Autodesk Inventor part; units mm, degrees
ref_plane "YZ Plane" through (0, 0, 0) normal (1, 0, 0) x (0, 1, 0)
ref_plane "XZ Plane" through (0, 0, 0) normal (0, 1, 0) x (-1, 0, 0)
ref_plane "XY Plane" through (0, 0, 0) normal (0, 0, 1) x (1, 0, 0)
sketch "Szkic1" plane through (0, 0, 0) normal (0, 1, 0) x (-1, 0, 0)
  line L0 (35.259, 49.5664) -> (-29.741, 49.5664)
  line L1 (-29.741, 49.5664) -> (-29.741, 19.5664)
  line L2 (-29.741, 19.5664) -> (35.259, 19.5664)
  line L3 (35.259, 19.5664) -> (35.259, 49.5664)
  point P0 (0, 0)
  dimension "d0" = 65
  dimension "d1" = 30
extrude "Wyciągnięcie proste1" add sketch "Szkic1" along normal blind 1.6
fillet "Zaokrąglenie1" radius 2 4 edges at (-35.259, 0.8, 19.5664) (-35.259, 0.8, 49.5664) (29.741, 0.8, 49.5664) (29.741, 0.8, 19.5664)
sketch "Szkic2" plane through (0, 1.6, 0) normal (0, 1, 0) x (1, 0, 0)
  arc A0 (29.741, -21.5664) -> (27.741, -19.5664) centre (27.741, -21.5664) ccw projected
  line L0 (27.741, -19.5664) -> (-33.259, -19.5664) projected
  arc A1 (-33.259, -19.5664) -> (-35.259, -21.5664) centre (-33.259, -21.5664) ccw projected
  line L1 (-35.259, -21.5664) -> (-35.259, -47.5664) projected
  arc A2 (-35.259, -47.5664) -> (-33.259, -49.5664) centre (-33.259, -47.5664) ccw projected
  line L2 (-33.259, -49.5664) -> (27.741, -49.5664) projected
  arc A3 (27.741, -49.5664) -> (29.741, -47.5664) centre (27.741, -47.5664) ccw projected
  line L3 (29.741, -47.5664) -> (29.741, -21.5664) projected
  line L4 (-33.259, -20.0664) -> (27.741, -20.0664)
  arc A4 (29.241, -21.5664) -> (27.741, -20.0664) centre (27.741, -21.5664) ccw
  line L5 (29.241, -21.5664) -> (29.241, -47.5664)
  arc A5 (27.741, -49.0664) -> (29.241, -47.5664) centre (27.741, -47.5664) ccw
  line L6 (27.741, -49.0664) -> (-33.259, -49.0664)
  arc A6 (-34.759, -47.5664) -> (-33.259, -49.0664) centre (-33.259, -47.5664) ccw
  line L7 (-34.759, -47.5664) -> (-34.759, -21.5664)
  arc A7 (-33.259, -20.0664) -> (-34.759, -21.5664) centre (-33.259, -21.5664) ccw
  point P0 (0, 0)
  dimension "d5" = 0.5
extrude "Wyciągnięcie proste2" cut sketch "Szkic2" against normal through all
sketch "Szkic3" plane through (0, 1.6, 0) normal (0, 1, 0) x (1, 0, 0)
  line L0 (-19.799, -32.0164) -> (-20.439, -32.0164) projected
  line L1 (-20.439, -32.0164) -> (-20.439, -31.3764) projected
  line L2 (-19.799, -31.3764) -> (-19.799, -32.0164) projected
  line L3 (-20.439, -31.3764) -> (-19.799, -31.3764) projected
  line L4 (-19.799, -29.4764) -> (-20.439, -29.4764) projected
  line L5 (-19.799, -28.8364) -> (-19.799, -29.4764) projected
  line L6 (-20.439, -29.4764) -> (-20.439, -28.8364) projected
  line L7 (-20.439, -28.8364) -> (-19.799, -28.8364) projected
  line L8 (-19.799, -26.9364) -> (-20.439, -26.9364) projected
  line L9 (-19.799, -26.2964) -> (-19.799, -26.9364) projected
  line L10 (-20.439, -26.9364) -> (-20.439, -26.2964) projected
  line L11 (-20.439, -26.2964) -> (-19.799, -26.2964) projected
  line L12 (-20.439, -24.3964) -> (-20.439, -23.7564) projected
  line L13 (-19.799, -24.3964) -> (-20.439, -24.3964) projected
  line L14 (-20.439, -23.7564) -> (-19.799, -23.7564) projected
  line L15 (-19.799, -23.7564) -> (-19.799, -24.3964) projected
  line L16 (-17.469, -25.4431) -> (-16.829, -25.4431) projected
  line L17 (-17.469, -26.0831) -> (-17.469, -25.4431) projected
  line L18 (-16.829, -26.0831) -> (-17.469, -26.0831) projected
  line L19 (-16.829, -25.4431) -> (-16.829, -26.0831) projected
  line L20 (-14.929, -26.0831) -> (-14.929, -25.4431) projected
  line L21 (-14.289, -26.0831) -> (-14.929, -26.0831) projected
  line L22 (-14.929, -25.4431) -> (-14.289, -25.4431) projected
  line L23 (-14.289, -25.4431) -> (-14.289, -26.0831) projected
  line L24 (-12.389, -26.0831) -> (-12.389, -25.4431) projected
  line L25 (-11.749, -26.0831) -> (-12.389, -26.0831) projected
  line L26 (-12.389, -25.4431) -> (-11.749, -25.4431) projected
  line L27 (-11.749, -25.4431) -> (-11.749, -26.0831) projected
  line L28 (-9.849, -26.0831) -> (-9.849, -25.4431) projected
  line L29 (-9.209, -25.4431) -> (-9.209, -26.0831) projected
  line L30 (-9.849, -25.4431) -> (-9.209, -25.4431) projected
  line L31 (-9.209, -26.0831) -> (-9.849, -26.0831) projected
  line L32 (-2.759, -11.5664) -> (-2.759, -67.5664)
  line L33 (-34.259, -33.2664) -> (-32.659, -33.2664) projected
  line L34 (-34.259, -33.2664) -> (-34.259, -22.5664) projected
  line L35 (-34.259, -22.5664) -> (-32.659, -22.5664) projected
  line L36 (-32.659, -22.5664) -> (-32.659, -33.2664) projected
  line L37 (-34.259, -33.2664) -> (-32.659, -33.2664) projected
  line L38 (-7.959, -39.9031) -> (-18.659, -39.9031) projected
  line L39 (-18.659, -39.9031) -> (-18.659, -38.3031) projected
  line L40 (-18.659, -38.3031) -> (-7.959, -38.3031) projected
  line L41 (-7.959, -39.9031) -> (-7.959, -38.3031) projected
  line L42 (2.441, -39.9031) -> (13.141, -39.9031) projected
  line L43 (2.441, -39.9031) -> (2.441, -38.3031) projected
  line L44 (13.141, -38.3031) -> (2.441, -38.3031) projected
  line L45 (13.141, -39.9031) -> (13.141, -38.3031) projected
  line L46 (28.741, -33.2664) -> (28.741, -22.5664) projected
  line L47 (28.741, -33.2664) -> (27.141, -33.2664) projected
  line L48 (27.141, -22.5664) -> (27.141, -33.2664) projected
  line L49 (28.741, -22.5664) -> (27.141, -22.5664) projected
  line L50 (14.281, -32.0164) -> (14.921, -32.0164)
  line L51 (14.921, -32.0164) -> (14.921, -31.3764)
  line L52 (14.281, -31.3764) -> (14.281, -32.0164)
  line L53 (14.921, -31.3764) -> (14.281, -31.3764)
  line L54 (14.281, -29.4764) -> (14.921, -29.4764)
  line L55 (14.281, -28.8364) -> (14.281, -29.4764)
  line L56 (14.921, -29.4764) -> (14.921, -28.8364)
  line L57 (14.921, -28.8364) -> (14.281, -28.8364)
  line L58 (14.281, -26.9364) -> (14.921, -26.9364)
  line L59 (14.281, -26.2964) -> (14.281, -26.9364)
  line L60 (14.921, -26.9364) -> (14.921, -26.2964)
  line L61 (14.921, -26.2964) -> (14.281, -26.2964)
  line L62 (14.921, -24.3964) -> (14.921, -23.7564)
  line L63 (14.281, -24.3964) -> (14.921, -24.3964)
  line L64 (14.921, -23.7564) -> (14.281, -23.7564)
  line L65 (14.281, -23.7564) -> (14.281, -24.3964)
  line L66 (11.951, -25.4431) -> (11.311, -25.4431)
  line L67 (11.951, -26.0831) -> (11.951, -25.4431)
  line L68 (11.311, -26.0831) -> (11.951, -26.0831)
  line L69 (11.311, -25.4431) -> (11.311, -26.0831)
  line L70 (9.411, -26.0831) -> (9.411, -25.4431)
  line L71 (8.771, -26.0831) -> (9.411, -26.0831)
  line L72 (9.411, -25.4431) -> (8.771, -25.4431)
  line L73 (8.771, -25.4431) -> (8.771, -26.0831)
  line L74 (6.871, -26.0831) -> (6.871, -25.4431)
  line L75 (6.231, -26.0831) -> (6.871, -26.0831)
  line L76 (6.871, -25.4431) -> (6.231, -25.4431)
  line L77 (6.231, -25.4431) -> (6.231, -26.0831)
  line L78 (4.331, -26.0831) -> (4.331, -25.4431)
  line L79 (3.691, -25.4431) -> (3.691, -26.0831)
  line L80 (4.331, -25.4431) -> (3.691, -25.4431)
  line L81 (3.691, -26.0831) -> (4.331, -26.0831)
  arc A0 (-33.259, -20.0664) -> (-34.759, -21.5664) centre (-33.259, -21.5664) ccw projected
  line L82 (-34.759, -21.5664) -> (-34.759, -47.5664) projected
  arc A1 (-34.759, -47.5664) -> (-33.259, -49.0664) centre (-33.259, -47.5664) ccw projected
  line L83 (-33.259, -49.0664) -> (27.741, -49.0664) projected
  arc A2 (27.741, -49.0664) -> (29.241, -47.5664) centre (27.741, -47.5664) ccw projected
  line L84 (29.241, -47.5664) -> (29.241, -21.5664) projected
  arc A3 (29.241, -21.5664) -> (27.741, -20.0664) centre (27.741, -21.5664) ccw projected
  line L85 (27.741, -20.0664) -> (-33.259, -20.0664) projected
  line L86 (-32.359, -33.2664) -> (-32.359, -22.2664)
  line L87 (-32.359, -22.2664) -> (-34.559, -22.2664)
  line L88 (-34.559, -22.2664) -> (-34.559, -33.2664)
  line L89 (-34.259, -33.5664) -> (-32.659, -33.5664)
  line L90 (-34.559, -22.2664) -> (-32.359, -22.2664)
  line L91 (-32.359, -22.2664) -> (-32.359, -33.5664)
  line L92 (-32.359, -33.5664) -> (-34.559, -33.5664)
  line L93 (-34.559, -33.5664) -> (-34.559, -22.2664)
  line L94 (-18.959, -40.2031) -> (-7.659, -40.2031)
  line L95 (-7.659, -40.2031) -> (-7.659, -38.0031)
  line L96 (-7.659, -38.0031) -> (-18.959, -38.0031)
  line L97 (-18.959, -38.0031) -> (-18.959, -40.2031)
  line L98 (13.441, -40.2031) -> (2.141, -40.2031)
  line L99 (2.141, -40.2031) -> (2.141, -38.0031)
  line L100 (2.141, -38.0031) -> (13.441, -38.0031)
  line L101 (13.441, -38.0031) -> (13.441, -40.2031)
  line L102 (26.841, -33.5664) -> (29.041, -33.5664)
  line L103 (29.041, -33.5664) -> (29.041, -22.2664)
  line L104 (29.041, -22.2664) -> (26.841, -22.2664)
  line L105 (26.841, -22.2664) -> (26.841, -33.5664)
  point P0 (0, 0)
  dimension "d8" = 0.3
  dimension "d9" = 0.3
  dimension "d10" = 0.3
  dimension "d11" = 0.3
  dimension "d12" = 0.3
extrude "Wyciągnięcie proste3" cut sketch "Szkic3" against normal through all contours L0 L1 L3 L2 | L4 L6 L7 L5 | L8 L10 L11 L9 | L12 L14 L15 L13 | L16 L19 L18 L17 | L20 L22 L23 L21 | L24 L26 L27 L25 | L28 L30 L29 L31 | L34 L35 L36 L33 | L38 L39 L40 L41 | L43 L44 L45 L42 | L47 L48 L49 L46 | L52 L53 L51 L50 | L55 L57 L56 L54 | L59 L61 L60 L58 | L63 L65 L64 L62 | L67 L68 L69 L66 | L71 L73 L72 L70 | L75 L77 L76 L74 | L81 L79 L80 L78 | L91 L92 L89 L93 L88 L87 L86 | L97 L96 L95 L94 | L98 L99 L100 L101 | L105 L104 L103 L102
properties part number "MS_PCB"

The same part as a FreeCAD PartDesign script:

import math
import FreeCAD as App
import Part
import Sketcher


def edges_at(feature, points):
    """Names of the edges that pass closest to the given points."""
    edges = feature.Shape.Edges
    near = lambda p: min(range(len(edges)), key=lambda i: edges[i].distToShape(Part.Vertex(*p))[0])
    return sorted({f"Edge{near(p) + 1}" for p in points})

doc = App.newDocument("Part")
body = doc.addObject("PartDesign::Body", "Body")

# Sketch on XZ plane
sketch1 = body.newObject("Sketcher::SketchObject", "Sketch")
sketch1.AttachmentSupport = (doc.getObject("XZ_Plane"), [""])
sketch1.MapMode = "FlatFace"
sketch1.addGeometry([
    Part.LineSegment(App.Vector(-35, 20, 0), App.Vector(-35, 50, 0)),
    Part.LineSegment(App.Vector(-35, 50, 0), App.Vector(30, 50, 0)),
    Part.LineSegment(App.Vector(30, 50, 0), App.Vector(30, 20, 0)),
    Part.LineSegment(App.Vector(30, 20, 0), App.Vector(-35, 20, 0)),
], False)
sketch1.addConstraint([
    Sketcher.Constraint("Coincident", 0, 2, 1, 1),
    Sketcher.Constraint("Coincident", 1, 2, 2, 1),
    Sketcher.Constraint("Coincident", 2, 2, 3, 1),
    Sketcher.Constraint("Coincident", 3, 2, 0, 1),
    Sketcher.Constraint("Vertical", 0),
    Sketcher.Constraint("Horizontal", 1),
    Sketcher.Constraint("Vertical", 2),
    Sketcher.Constraint("Horizontal", 3),
    Sketcher.Constraint("DistanceX", 1, 1, 1, 2, 65.0),
    Sketcher.Constraint("DistanceY", 0, 1, 0, 2, 30.0),
    Sketcher.Constraint("DistanceX", 0, 2, -1, 1, 35.259),
    Sketcher.Constraint("DistanceY", -1, 1, 0, 2, 49.5664),
])
pad1 = body.newObject("PartDesign::Pad", "Pad")
pad1.Profile = sketch1
pad1.Length = 1.6
pad1.Reversed = True
doc.recompute()

fillet = body.newObject("PartDesign::Fillet", "Fillet")
fillet.Base = (pad1, edges_at(pad1, [
    (-35.259, 0.8, 19.566),
    (-35.259, 0.8, 49.566),
    (29.741, 0.8, 49.566),
    (29.741, 0.8, 19.566),
]))
fillet.Radius = 2

# Sketch on XZ plane
sketch2 = body.newObject("Sketcher::SketchObject", "Sketch001")
sketch2.AttachmentSupport = (doc.getObject("XZ_Plane"), [""])
sketch2.MapMode = "FlatFace"
sketch2.AttachmentOffset = App.Placement(App.Vector(0, 0, -1.6), App.Rotation())
sketch2.addGeometry([
    Part.LineSegment(App.Vector(29.7, 47.6, 0), App.Vector(29.7, 21.6, 0)),  # 0
    Part.ArcOfCircle(Part.Circle(App.Vector(27.7, 21.6, 0), App.Vector(0, 0, 1), 2), math.radians(-90), math.radians(0)),  # 1
    Part.LineSegment(App.Vector(27.7, 19.6, 0), App.Vector(-33.3, 19.6, 0)),  # 2
    Part.ArcOfCircle(Part.Circle(App.Vector(-33.3, 21.6, 0), App.Vector(0, 0, 1), 2), math.radians(180), math.radians(270)),  # 3
    Part.LineSegment(App.Vector(-35.3, 21.6, 0), App.Vector(-35.3, 47.6, 0)),  # 4
    Part.ArcOfCircle(Part.Circle(App.Vector(-33.3, 47.6, 0), App.Vector(0, 0, 1), 2), math.radians(90), math.radians(180)),  # 5
    Part.LineSegment(App.Vector(-33.3, 49.6, 0), App.Vector(27.7, 49.6, 0)),  # 6
    Part.ArcOfCircle(Part.Circle(App.Vector(27.7, 47.6, 0), App.Vector(0, 0, 1), 2), math.radians(0), math.radians(90)),  # 7
    Part.ArcOfCircle(Part.Circle(App.Vector(-33.3, 21.6, 0), App.Vector(0, 0, 1), 1.5), math.radians(180), math.radians(270)),  # 8
    Part.LineSegment(App.Vector(-33.3, 20.1, 0), App.Vector(27.7, 20.1, 0)),  # 9
    Part.ArcOfCircle(Part.Circle(App.Vector(27.7, 21.6, 0), App.Vector(0, 0, 1), 1.5), math.radians(-90), math.radians(0)),  # 10
    Part.LineSegment(App.Vector(29.2, 21.6, 0), App.Vector(29.2, 47.6, 0)),  # 11
    Part.ArcOfCircle(Part.Circle(App.Vector(27.7, 47.6, 0), App.Vector(0, 0, 1), 1.5), math.radians(0), math.radians(90)),  # 12
    Part.LineSegment(App.Vector(27.7, 49.1, 0), App.Vector(-33.3, 49.1, 0)),  # 13
    Part.ArcOfCircle(Part.Circle(App.Vector(-33.3, 47.6, 0), App.Vector(0, 0, 1), 1.5), math.radians(90), math.radians(180)),  # 14
    Part.LineSegment(App.Vector(-34.8, 47.6, 0), App.Vector(-34.8, 21.6, 0)),  # 15
], False)
sketch2.addConstraint([
    Sketcher.Constraint("Tangent", 0, 2, 1, 2),
    Sketcher.Constraint("Tangent", 1, 1, 2, 1),
    Sketcher.Constraint("Tangent", 2, 2, 3, 2),
    Sketcher.Constraint("Tangent", 3, 1, 4, 1),
    Sketcher.Constraint("Tangent", 4, 2, 5, 2),
    Sketcher.Constraint("Tangent", 5, 1, 6, 1),
    Sketcher.Constraint("Tangent", 6, 2, 7, 2),
    Sketcher.Constraint("Tangent", 7, 1, 0, 1),
    Sketcher.Constraint("Tangent", 8, 2, 9, 1),
    Sketcher.Constraint("Tangent", 9, 2, 10, 1),
    Sketcher.Constraint("Tangent", 10, 2, 11, 1),
    Sketcher.Constraint("Tangent", 11, 2, 12, 1),
    Sketcher.Constraint("Tangent", 12, 2, 13, 1),
    Sketcher.Constraint("Tangent", 13, 2, 14, 1),
    Sketcher.Constraint("Tangent", 14, 2, 15, 1),
    Sketcher.Constraint("Tangent", 15, 2, 8, 1),
    Sketcher.Constraint("Vertical", 0),
    Sketcher.Constraint("Horizontal", 2),
    Sketcher.Constraint("Vertical", 4),
    Sketcher.Constraint("Horizontal", 6),
    Sketcher.Constraint("Horizontal", 9),
    Sketcher.Constraint("Vertical", 11),
    Sketcher.Constraint("Horizontal", 13),
    Sketcher.Constraint("Vertical", 15),
    Sketcher.Constraint("Coincident", 8, 3, 3, 3),
    Sketcher.Constraint("Coincident", 10, 3, 1, 3),
    Sketcher.Constraint("Coincident", 12, 3, 7, 3),
    Sketcher.Constraint("Equal", 1, 3),
    Sketcher.Constraint("Equal", 3, 5),
    Sketcher.Constraint("Equal", 5, 7),
    Sketcher.Constraint("Equal", 12, 14),
    Sketcher.Constraint("Radius", 1, 2.0),
    Sketcher.Constraint("Radius", 8, 1.5),
    Sketcher.Constraint("DistanceX", 2, 2, 2, 1, 61.0),
    Sketcher.Constraint("DistanceY", 0, 2, 0, 1, 26.0),
    Sketcher.Constraint("DistanceX", -1, 1, 1, 3, 27.741),
    Sketcher.Constraint("DistanceY", -1, 1, 1, 3, 21.5664),
])
pocket1 = body.newObject("PartDesign::Pocket", "Pocket")
pocket1.Profile = sketch2
pocket1.Type = "ThroughAll"
pocket1.Reversed = True

# Sketch on XZ plane
sketch3 = body.newObject("Sketcher::SketchObject", "Sketch002")
sketch3.AttachmentSupport = (doc.getObject("XZ_Plane"), [""])
sketch3.MapMode = "FlatFace"
sketch3.AttachmentOffset = App.Placement(App.Vector(0, 0, -1.6), App.Rotation())
sketch3.addGeometry([
    Part.LineSegment(App.Vector(-20.4, 32, 0), App.Vector(-19.8, 32, 0)),  # 0
    Part.LineSegment(App.Vector(-19.8, 32, 0), App.Vector(-19.8, 31.4, 0)),  # 1
    Part.LineSegment(App.Vector(-19.8, 31.4, 0), App.Vector(-20.4, 31.4, 0)),  # 2
    Part.LineSegment(App.Vector(-20.4, 31.4, 0), App.Vector(-20.4, 32, 0)),  # 3
    Part.LineSegment(App.Vector(-20.4, 29.5, 0), App.Vector(-19.8, 29.5, 0)),  # 4
    Part.LineSegment(App.Vector(-19.8, 29.5, 0), App.Vector(-19.8, 28.8, 0)),  # 5
    Part.LineSegment(App.Vector(-19.8, 28.8, 0), App.Vector(-20.4, 28.8, 0)),  # 6
    Part.LineSegment(App.Vector(-20.4, 28.8, 0), App.Vector(-20.4, 29.5, 0)),  # 7
    Part.LineSegment(App.Vector(-20.4, 26.9, 0), App.Vector(-19.8, 26.9, 0)),  # 8
    Part.LineSegment(App.Vector(-19.8, 26.9, 0), App.Vector(-19.8, 26.3, 0)),  # 9
    Part.LineSegment(App.Vector(-19.8, 26.3, 0), App.Vector(-20.4, 26.3, 0)),  # 10
    Part.LineSegment(App.Vector(-20.4, 26.3, 0), App.Vector(-20.4, 26.9, 0)),  # 11
    Part.LineSegment(App.Vector(-20.4, 23.8, 0), App.Vector(-20.4, 24.4, 0)),  # 12
    Part.LineSegment(App.Vector(-20.4, 24.4, 0), App.Vector(-19.8, 24.4, 0)),  # 13
    Part.LineSegment(App.Vector(-19.8, 24.4, 0), App.Vector(-19.8, 23.8, 0)),  # 14
    Part.LineSegment(App.Vector(-19.8, 23.8, 0), App.Vector(-20.4, 23.8, 0)),  # 15
    Part.LineSegment(App.Vector(-16.8, 25.4, 0), App.Vector(-17.5, 25.4, 0)),  # 16
    Part.LineSegment(App.Vector(-17.5, 25.4, 0), App.Vector(-17.5, 26.1, 0)),  # 17
    Part.LineSegment(App.Vector(-17.5, 26.1, 0), App.Vector(-16.8, 26.1, 0)),  # 18
    Part.LineSegment(App.Vector(-16.8, 26.1, 0), App.Vector(-16.8, 25.4, 0)),  # 19
    Part.LineSegment(App.Vector(-14.9, 25.4, 0), App.Vector(-14.9, 26.1, 0)),  # 20
    Part.LineSegment(App.Vector(-14.9, 26.1, 0), App.Vector(-14.3, 26.1, 0)),  # 21
    Part.LineSegment(App.Vector(-14.3, 26.1, 0), App.Vector(-14.3, 25.4, 0)),  # 22
    Part.LineSegment(App.Vector(-14.3, 25.4, 0), App.Vector(-14.9, 25.4, 0)),  # 23
    Part.LineSegment(App.Vector(-12.4, 25.4, 0), App.Vector(-12.4, 26.1, 0)),  # 24
    Part.LineSegment(App.Vector(-12.4, 26.1, 0), App.Vector(-11.7, 26.1, 0)),  # 25
    Part.LineSegment(App.Vector(-11.7, 26.1, 0), App.Vector(-11.7, 25.4, 0)),  # 26
    Part.LineSegment(App.Vector(-11.7, 25.4, 0), App.Vector(-12.4, 25.4, 0)),  # 27
    Part.LineSegment(App.Vector(-9.8, 25.4, 0), App.Vector(-9.8, 26.1, 0)),  # 28
    Part.LineSegment(App.Vector(-9.8, 26.1, 0), App.Vector(-9.2, 26.1, 0)),  # 29
    Part.LineSegment(App.Vector(-9.2, 26.1, 0), App.Vector(-9.2, 25.4, 0)),  # 30
    Part.LineSegment(App.Vector(-9.2, 25.4, 0), App.Vector(-9.8, 25.4, 0)),  # 31
    Part.LineSegment(App.Vector(-32.4, 33.6, 0), App.Vector(-32.4, 22.3, 0)),  # 32
    Part.LineSegment(App.Vector(-32.4, 22.3, 0), App.Vector(-34.6, 22.3, 0)),  # 33
    Part.LineSegment(App.Vector(-34.6, 22.3, 0), App.Vector(-34.6, 33.6, 0)),  # 34
    Part.LineSegment(App.Vector(-34.6, 33.6, 0), App.Vector(-32.4, 33.6, 0)),  # 35
    Part.LineSegment(App.Vector(-19, 38, 0), App.Vector(-19, 40.2, 0)),  # 36
    Part.LineSegment(App.Vector(-19, 40.2, 0), App.Vector(-7.7, 40.2, 0)),  # 37
    Part.LineSegment(App.Vector(-7.7, 40.2, 0), App.Vector(-7.7, 38, 0)),  # 38
    Part.LineSegment(App.Vector(-7.7, 38, 0), App.Vector(-19, 38, 0)),  # 39
    Part.LineSegment(App.Vector(2.1, 40.2, 0), App.Vector(13.4, 40.2, 0)),  # 40
    Part.LineSegment(App.Vector(13.4, 40.2, 0), App.Vector(13.4, 38, 0)),  # 41
    Part.LineSegment(App.Vector(13.4, 38, 0), App.Vector(2.1, 38, 0)),  # 42
    Part.LineSegment(App.Vector(2.1, 38, 0), App.Vector(2.1, 40.2, 0)),  # 43
    Part.LineSegment(App.Vector(26.8, 22.3, 0), App.Vector(26.8, 33.6, 0)),  # 44
    Part.LineSegment(App.Vector(26.8, 33.6, 0), App.Vector(29, 33.6, 0)),  # 45
    Part.LineSegment(App.Vector(29, 33.6, 0), App.Vector(29, 22.3, 0)),  # 46
    Part.LineSegment(App.Vector(29, 22.3, 0), App.Vector(26.8, 22.3, 0)),  # 47
    Part.LineSegment(App.Vector(14.3, 31.4, 0), App.Vector(14.3, 32, 0)),  # 48
    Part.LineSegment(App.Vector(14.3, 32, 0), App.Vector(14.9, 32, 0)),  # 49
    Part.LineSegment(App.Vector(14.9, 32, 0), App.Vector(14.9, 31.4, 0)),  # 50
    Part.LineSegment(App.Vector(14.9, 31.4, 0), App.Vector(14.3, 31.4, 0)),  # 51
    Part.LineSegment(App.Vector(14.3, 28.8, 0), App.Vector(14.3, 29.5, 0)),  # 52
    Part.LineSegment(App.Vector(14.3, 29.5, 0), App.Vector(14.9, 29.5, 0)),  # 53
    Part.LineSegment(App.Vector(14.9, 29.5, 0), App.Vector(14.9, 28.8, 0)),  # 54
    Part.LineSegment(App.Vector(14.9, 28.8, 0), App.Vector(14.3, 28.8, 0)),  # 55
    Part.LineSegment(App.Vector(14.3, 26.3, 0), App.Vector(14.3, 26.9, 0)),  # 56
    Part.LineSegment(App.Vector(14.3, 26.9, 0), App.Vector(14.9, 26.9, 0)),  # 57
    Part.LineSegment(App.Vector(14.9, 26.9, 0), App.Vector(14.9, 26.3, 0)),  # 58
    Part.LineSegment(App.Vector(14.9, 26.3, 0), App.Vector(14.3, 26.3, 0)),  # 59
    Part.LineSegment(App.Vector(14.3, 24.4, 0), App.Vector(14.9, 24.4, 0)),  # 60
    Part.LineSegment(App.Vector(14.9, 24.4, 0), App.Vector(14.9, 23.8, 0)),  # 61
    Part.LineSegment(App.Vector(14.9, 23.8, 0), App.Vector(14.3, 23.8, 0)),  # 62
    Part.LineSegment(App.Vector(14.3, 23.8, 0), App.Vector(14.3, 24.4, 0)),  # 63
    Part.LineSegment(App.Vector(12, 26.1, 0), App.Vector(12, 25.4, 0)),  # 64
    Part.LineSegment(App.Vector(12, 25.4, 0), App.Vector(11.3, 25.4, 0)),  # 65
    Part.LineSegment(App.Vector(11.3, 25.4, 0), App.Vector(11.3, 26.1, 0)),  # 66
    Part.LineSegment(App.Vector(11.3, 26.1, 0), App.Vector(12, 26.1, 0)),  # 67
    Part.LineSegment(App.Vector(8.8, 26.1, 0), App.Vector(9.4, 26.1, 0)),  # 68
    Part.LineSegment(App.Vector(9.4, 26.1, 0), App.Vector(9.4, 25.4, 0)),  # 69
    Part.LineSegment(App.Vector(9.4, 25.4, 0), App.Vector(8.8, 25.4, 0)),  # 70
    Part.LineSegment(App.Vector(8.8, 25.4, 0), App.Vector(8.8, 26.1, 0)),  # 71
    Part.LineSegment(App.Vector(6.2, 26.1, 0), App.Vector(6.9, 26.1, 0)),  # 72
    Part.LineSegment(App.Vector(6.9, 26.1, 0), App.Vector(6.9, 25.4, 0)),  # 73
    Part.LineSegment(App.Vector(6.9, 25.4, 0), App.Vector(6.2, 25.4, 0)),  # 74
    Part.LineSegment(App.Vector(6.2, 25.4, 0), App.Vector(6.2, 26.1, 0)),  # 75
    Part.LineSegment(App.Vector(3.7, 26.1, 0), App.Vector(4.3, 26.1, 0)),  # 76
    Part.LineSegment(App.Vector(4.3, 26.1, 0), App.Vector(4.3, 25.4, 0)),  # 77
    Part.LineSegment(App.Vector(4.3, 25.4, 0), App.Vector(3.7, 25.4, 0)),  # 78
    Part.LineSegment(App.Vector(3.7, 25.4, 0), App.Vector(3.7, 26.1, 0)),  # 79
], False)
sketch3.addConstraint([
    Sketcher.Constraint("Coincident", 0, 2, 1, 1),
    Sketcher.Constraint("Coincident", 1, 2, 2, 1),
    Sketcher.Constraint("Coincident", 2, 2, 3, 1),
    Sketcher.Constraint("Coincident", 3, 2, 0, 1),
    Sketcher.Constraint("Coincident", 4, 2, 5, 1),
    Sketcher.Constraint("Coincident", 5, 2, 6, 1),
    Sketcher.Constraint("Coincident", 6, 2, 7, 1),
    Sketcher.Constraint("Coincident", 7, 2, 4, 1),
    Sketcher.Constraint("Coincident", 8, 2, 9, 1),
    Sketcher.Constraint("Coincident", 9, 2, 10, 1),
    Sketcher.Constraint("Coincident", 10, 2, 11, 1),
    Sketcher.Constraint("Coincident", 11, 2, 8, 1),
    Sketcher.Constraint("Coincident", 12, 2, 13, 1),
    Sketcher.Constraint("Coincident", 13, 2, 14, 1),
    Sketcher.Constraint("Coincident", 14, 2, 15, 1),
    Sketcher.Constraint("Coincident", 15, 2, 12, 1),
    Sketcher.Constraint("Coincident", 16, 2, 17, 1),
    Sketcher.Constraint("Coincident", 17, 2, 18, 1),
    Sketcher.Constraint("Coincident", 18, 2, 19, 1),
    Sketcher.Constraint("Coincident", 19, 2, 16, 1),
    Sketcher.Constraint("Coincident", 20, 2, 21, 1),
    Sketcher.Constraint("Coincident", 21, 2, 22, 1),
    Sketcher.Constraint("Coincident", 22, 2, 23, 1),
    Sketcher.Constraint("Coincident", 23, 2, 20, 1),
    Sketcher.Constraint("Coincident", 24, 2, 25, 1),
    Sketcher.Constraint("Coincident", 25, 2, 26, 1),
    Sketcher.Constraint("Coincident", 26, 2, 27, 1),
    Sketcher.Constraint("Coincident", 27, 2, 24, 1),
    Sketcher.Constraint("Coincident", 28, 2, 29, 1),
    Sketcher.Constraint("Coincident", 29, 2, 30, 1),
    Sketcher.Constraint("Coincident", 30, 2, 31, 1),
    Sketcher.Constraint("Coincident", 31, 2, 28, 1),
    Sketcher.Constraint("Coincident", 32, 2, 33, 1),
    Sketcher.Constraint("Coincident", 33, 2, 34, 1),
    Sketcher.Constraint("Coincident", 34, 2, 35, 1),
    Sketcher.Constraint("Coincident", 35, 2, 32, 1),
    Sketcher.Constraint("Coincident", 36, 2, 37, 1),
    Sketcher.Constraint("Coincident", 37, 2, 38, 1),
    Sketcher.Constraint("Coincident", 38, 2, 39, 1),
    Sketcher.Constraint("Coincident", 39, 2, 36, 1),
    Sketcher.Constraint("Coincident", 40, 2, 41, 1),
    Sketcher.Constraint("Coincident", 41, 2, 42, 1),
    Sketcher.Constraint("Coincident", 42, 2, 43, 1),
    Sketcher.Constraint("Coincident", 43, 2, 40, 1),
    Sketcher.Constraint("Coincident", 44, 2, 45, 1),
    Sketcher.Constraint("Coincident", 45, 2, 46, 1),
    Sketcher.Constraint("Coincident", 46, 2, 47, 1),
    Sketcher.Constraint("Coincident", 47, 2, 44, 1),
    Sketcher.Constraint("Coincident", 48, 2, 49, 1),
    Sketcher.Constraint("Coincident", 49, 2, 50, 1),
    Sketcher.Constraint("Coincident", 50, 2, 51, 1),
    Sketcher.Constraint("Coincident", 51, 2, 48, 1),
    Sketcher.Constraint("Coincident", 52, 2, 53, 1),
    Sketcher.Constraint("Coincident", 53, 2, 54, 1),
    Sketcher.Constraint("Coincident", 54, 2, 55, 1),
    Sketcher.Constraint("Coincident", 55, 2, 52, 1),
    Sketcher.Constraint("Coincident", 56, 2, 57, 1),
    Sketcher.Constraint("Coincident", 57, 2, 58, 1),
    Sketcher.Constraint("Coincident", 58, 2, 59, 1),
    Sketcher.Constraint("Coincident", 59, 2, 56, 1),
    Sketcher.Constraint("Coincident", 60, 2, 61, 1),
    Sketcher.Constraint("Coincident", 61, 2, 62, 1),
    Sketcher.Constraint("Coincident", 62, 2, 63, 1),
    Sketcher.Constraint("Coincident", 63, 2, 60, 1),
    Sketcher.Constraint("Coincident", 64, 2, 65, 1),
    Sketcher.Constraint("Coincident", 65, 2, 66, 1),
    Sketcher.Constraint("Coincident", 66, 2, 67, 1),
    Sketcher.Constraint("Coincident", 67, 2, 64, 1),
    Sketcher.Constraint("Coincident", 68, 2, 69, 1),
    Sketcher.Constraint("Coincident", 69, 2, 70, 1),
    Sketcher.Constraint("Coincident", 70, 2, 71, 1),
    Sketcher.Constraint("Coincident", 71, 2, 68, 1),
    Sketcher.Constraint("Coincident", 72, 2, 73, 1),
    Sketcher.Constraint("Coincident", 73, 2, 74, 1),
    Sketcher.Constraint("Coincident", 74, 2, 75, 1),
    Sketcher.Constraint("Coincident", 75, 2, 72, 1),
    Sketcher.Constraint("Coincident", 76, 2, 77, 1),
    Sketcher.Constraint("Coincident", 77, 2, 78, 1),
    Sketcher.Constraint("Coincident", 78, 2, 79, 1),
    Sketcher.Constraint("Coincident", 79, 2, 76, 1),
    Sketcher.Constraint("Horizontal", 0),
    Sketcher.Constraint("Vertical", 1),
    Sketcher.Constraint("Horizontal", 2),
    Sketcher.Constraint("Vertical", 3),
    Sketcher.Constraint("Horizontal", 4),
    Sketcher.Constraint("Vertical", 5),
    Sketcher.Constraint("Horizontal", 6),
    Sketcher.Constraint("Vertical", 7),
    Sketcher.Constraint("Horizontal", 8),
    Sketcher.Constraint("Vertical", 9),
    Sketcher.Constraint("Horizontal", 10),
    Sketcher.Constraint("Vertical", 11),
    Sketcher.Constraint("Vertical", 12),
    Sketcher.Constraint("Horizontal", 13),
    Sketcher.Constraint("Vertical", 14),
    Sketcher.Constraint("Horizontal", 15),
    Sketcher.Constraint("Horizontal", 16),
    Sketcher.Constraint("Vertical", 17),
    Sketcher.Constraint("Horizontal", 18),
    Sketcher.Constraint("Vertical", 19),
    Sketcher.Constraint("Vertical", 20),
    Sketcher.Constraint("Horizontal", 21),
    Sketcher.Constraint("Vertical", 22),
    Sketcher.Constraint("Horizontal", 23),
    Sketcher.Constraint("Vertical", 24),
    Sketcher.Constraint("Horizontal", 25),
    Sketcher.Constraint("Vertical", 26),
    Sketcher.Constraint("Horizontal", 27),
    Sketcher.Constraint("Vertical", 28),
    Sketcher.Constraint("Horizontal", 29),
    Sketcher.Constraint("Vertical", 30),
    Sketcher.Constraint("Horizontal", 31),
    Sketcher.Constraint("Vertical", 32),
    Sketcher.Constraint("Horizontal", 33),
    Sketcher.Constraint("Vertical", 34),
    Sketcher.Constraint("Horizontal", 35),
    Sketcher.Constraint("Vertical", 36),
    Sketcher.Constraint("Horizontal", 37),
    Sketcher.Constraint("Vertical", 38),
    Sketcher.Constraint("Horizontal", 39),
    Sketcher.Constraint("Horizontal", 40),
    Sketcher.Constraint("Vertical", 41),
    Sketcher.Constraint("Horizontal", 42),
    Sketcher.Constraint("Vertical", 43),
    Sketcher.Constraint("Vertical", 44),
    Sketcher.Constraint("Horizontal", 45),
    Sketcher.Constraint("Vertical", 46),
    Sketcher.Constraint("Horizontal", 47),
    Sketcher.Constraint("Vertical", 48),
    Sketcher.Constraint("Horizontal", 49),
    Sketcher.Constraint("Vertical", 50),
    Sketcher.Constraint("Horizontal", 51),
    Sketcher.Constraint("Vertical", 52),
    Sketcher.Constraint("Horizontal", 53),
    Sketcher.Constraint("Vertical", 54),
    Sketcher.Constraint("Horizontal", 55),
    Sketcher.Constraint("Vertical", 56),
    Sketcher.Constraint("Horizontal", 57),
    Sketcher.Constraint("Vertical", 58),
    Sketcher.Constraint("Horizontal", 59),
    Sketcher.Constraint("Horizontal", 60),
    Sketcher.Constraint("Vertical", 61),
    Sketcher.Constraint("Horizontal", 62),
    Sketcher.Constraint("Vertical", 63),
    Sketcher.Constraint("Vertical", 64),
    Sketcher.Constraint("Horizontal", 65),
    Sketcher.Constraint("Vertical", 66),
    Sketcher.Constraint("Horizontal", 67),
    Sketcher.Constraint("Horizontal", 68),
    Sketcher.Constraint("Vertical", 69),
    Sketcher.Constraint("Horizontal", 70),
    Sketcher.Constraint("Vertical", 71),
    Sketcher.Constraint("Horizontal", 72),
    Sketcher.Constraint("Vertical", 73),
    Sketcher.Constraint("Horizontal", 74),
    Sketcher.Constraint("Vertical", 75),
    Sketcher.Constraint("Horizontal", 76),
    Sketcher.Constraint("Vertical", 77),
    Sketcher.Constraint("Horizontal", 78),
    Sketcher.Constraint("Vertical", 79),
    Sketcher.Constraint("Horizontal", 18, 2, 20, 2),
    Sketcher.Constraint("Horizontal", 19, 2, 22, 2),
    Sketcher.Constraint("Horizontal", 21, 2, 24, 2),
    Sketcher.Constraint("Horizontal", 23, 2, 26, 2),
    Sketcher.Constraint("Horizontal", 25, 2, 28, 2),
    Sketcher.Constraint("Horizontal", 27, 2, 30, 2),
    Sketcher.Constraint("Horizontal", 37, 2, 40, 2),
    Sketcher.Constraint("Horizontal", 39, 2, 41, 2),
    Sketcher.Constraint("Horizontal", 35, 2, 44, 2),
    Sketcher.Constraint("Horizontal", 33, 2, 46, 2),
    Sketcher.Constraint("Horizontal", 3, 2, 48, 2),
    Sketcher.Constraint("Horizontal", 2, 2, 50, 2),
    Sketcher.Constraint("Horizontal", 7, 2, 52, 2),
    Sketcher.Constraint("Horizontal", 6, 2, 54, 2),
    Sketcher.Constraint("Horizontal", 11, 2, 56, 2),
    Sketcher.Constraint("Horizontal", 10, 2, 58, 2),
    Sketcher.Constraint("Horizontal", 13, 2, 60, 2),
    Sketcher.Constraint("Horizontal", 15, 2, 61, 2),
    Sketcher.Constraint("Horizontal", 31, 2, 64, 2),
    Sketcher.Constraint("Horizontal", 29, 2, 66, 2),
    Sketcher.Constraint("Horizontal", 67, 2, 68, 2),
    Sketcher.Constraint("Horizontal", 65, 2, 69, 2),
    Sketcher.Constraint("Horizontal", 71, 2, 72, 2),
    Sketcher.Constraint("Horizontal", 70, 2, 73, 2),
    Sketcher.Constraint("Horizontal", 75, 2, 76, 2),
    Sketcher.Constraint("Horizontal", 74, 2, 77, 2),
    Sketcher.Constraint("Vertical", 1, 2, 4, 2),
    Sketcher.Constraint("Vertical", 3, 2, 6, 2),
    Sketcher.Constraint("Vertical", 5, 2, 8, 2),
    Sketcher.Constraint("Vertical", 7, 2, 10, 2),
    Sketcher.Constraint("Vertical", 11, 2, 12, 2),
    Sketcher.Constraint("Vertical", 9, 2, 13, 2),
    Sketcher.Constraint("Vertical", 51, 2, 52, 2),
    Sketcher.Constraint("Vertical", 50, 2, 53, 2),
    Sketcher.Constraint("Vertical", 55, 2, 56, 2),
    Sketcher.Constraint("Vertical", 54, 2, 57, 2),
    Sketcher.Constraint("Vertical", 58, 2, 60, 2),
    Sketcher.Constraint("Vertical", 59, 2, 62, 2),
    Sketcher.Constraint("Equal", 15, 16),
    Sketcher.Constraint("Equal", 18, 21),
    Sketcher.Constraint("Equal", 23, 25),
    Sketcher.Constraint("Equal", 27, 29),
    Sketcher.Constraint("Equal", 39, 40),
    Sketcher.Constraint("Equal", 35, 45),
    Sketcher.Constraint("Equal", 31, 49),
    Sketcher.Constraint("Equal", 62, 65),
    Sketcher.Constraint("Equal", 67, 68),
    Sketcher.Constraint("Equal", 70, 72),
    Sketcher.Constraint("Equal", 74, 76),
    Sketcher.Constraint("Equal", 78, 1),
    Sketcher.Constraint("Equal", 3, 5),
    Sketcher.Constraint("Equal", 7, 9),
    Sketcher.Constraint("Equal", 11, 12),
    Sketcher.Constraint("Equal", 14, 17),
    Sketcher.Constraint("Equal", 42, 32),
    Sketcher.Constraint("Equal", 47, 36),
    Sketcher.Constraint("DistanceX", 33, 2, 33, 1, 2.2),
    Sketcher.Constraint("DistanceX", 37, 1, 37, 2, 11.3),
    Sketcher.Constraint("DistanceX", 0, 1, 0, 2, 0.64),
    Sketcher.Constraint("DistanceX", 0, 2, -1, 1, 19.799),
    Sketcher.Constraint("DistanceX", 16, 2, -1, 1, 17.469),
    Sketcher.Constraint("DistanceY", -1, 1, 16, 2, 25.443),
    Sketcher.Constraint("DistanceX", 20, 2, -1, 1, 14.929),
    Sketcher.Constraint("DistanceX", 24, 2, -1, 1, 12.389),
    Sketcher.Constraint("DistanceX", 28, 2, -1, 1, 9.849),
    Sketcher.Constraint("DistanceX", 32, 2, -1, 1, 32.359),
    Sketcher.Constraint("DistanceX", 36, 2, -1, 1, 18.959),
    Sketcher.Constraint("DistanceY", -1, 1, 36, 2, 40.203),
    Sketcher.Constraint("DistanceX", -1, 1, 40, 2, 13.441),
    Sketcher.Constraint("DistanceX", -1, 1, 44, 2, 26.841),
    Sketcher.Constraint("DistanceX", -1, 1, 48, 2, 14.281),
    Sketcher.Constraint("DistanceX", -1, 1, 64, 2, 11.951),
    Sketcher.Constraint("DistanceX", -1, 1, 68, 2, 9.411),
    Sketcher.Constraint("DistanceX", -1, 1, 72, 2, 6.871),
    Sketcher.Constraint("DistanceX", -1, 1, 76, 2, 4.331),
    Sketcher.Constraint("DistanceY", -1, 1, 0, 2, 32.0164),
    Sketcher.Constraint("DistanceY", -1, 1, 4, 2, 29.4764),
    Sketcher.Constraint("DistanceY", -1, 1, 8, 2, 26.9364),
    Sketcher.Constraint("DistanceY", -1, 1, 12, 2, 24.3964),
    Sketcher.Constraint("DistanceY", -1, 1, 32, 2, 22.2664),
])
pocket2 = body.newObject("PartDesign::Pocket", "Pocket001")
pocket2.Profile = sketch3
pocket2.Type = "ThroughAll"
pocket2.Reversed = True

doc.recompute()
